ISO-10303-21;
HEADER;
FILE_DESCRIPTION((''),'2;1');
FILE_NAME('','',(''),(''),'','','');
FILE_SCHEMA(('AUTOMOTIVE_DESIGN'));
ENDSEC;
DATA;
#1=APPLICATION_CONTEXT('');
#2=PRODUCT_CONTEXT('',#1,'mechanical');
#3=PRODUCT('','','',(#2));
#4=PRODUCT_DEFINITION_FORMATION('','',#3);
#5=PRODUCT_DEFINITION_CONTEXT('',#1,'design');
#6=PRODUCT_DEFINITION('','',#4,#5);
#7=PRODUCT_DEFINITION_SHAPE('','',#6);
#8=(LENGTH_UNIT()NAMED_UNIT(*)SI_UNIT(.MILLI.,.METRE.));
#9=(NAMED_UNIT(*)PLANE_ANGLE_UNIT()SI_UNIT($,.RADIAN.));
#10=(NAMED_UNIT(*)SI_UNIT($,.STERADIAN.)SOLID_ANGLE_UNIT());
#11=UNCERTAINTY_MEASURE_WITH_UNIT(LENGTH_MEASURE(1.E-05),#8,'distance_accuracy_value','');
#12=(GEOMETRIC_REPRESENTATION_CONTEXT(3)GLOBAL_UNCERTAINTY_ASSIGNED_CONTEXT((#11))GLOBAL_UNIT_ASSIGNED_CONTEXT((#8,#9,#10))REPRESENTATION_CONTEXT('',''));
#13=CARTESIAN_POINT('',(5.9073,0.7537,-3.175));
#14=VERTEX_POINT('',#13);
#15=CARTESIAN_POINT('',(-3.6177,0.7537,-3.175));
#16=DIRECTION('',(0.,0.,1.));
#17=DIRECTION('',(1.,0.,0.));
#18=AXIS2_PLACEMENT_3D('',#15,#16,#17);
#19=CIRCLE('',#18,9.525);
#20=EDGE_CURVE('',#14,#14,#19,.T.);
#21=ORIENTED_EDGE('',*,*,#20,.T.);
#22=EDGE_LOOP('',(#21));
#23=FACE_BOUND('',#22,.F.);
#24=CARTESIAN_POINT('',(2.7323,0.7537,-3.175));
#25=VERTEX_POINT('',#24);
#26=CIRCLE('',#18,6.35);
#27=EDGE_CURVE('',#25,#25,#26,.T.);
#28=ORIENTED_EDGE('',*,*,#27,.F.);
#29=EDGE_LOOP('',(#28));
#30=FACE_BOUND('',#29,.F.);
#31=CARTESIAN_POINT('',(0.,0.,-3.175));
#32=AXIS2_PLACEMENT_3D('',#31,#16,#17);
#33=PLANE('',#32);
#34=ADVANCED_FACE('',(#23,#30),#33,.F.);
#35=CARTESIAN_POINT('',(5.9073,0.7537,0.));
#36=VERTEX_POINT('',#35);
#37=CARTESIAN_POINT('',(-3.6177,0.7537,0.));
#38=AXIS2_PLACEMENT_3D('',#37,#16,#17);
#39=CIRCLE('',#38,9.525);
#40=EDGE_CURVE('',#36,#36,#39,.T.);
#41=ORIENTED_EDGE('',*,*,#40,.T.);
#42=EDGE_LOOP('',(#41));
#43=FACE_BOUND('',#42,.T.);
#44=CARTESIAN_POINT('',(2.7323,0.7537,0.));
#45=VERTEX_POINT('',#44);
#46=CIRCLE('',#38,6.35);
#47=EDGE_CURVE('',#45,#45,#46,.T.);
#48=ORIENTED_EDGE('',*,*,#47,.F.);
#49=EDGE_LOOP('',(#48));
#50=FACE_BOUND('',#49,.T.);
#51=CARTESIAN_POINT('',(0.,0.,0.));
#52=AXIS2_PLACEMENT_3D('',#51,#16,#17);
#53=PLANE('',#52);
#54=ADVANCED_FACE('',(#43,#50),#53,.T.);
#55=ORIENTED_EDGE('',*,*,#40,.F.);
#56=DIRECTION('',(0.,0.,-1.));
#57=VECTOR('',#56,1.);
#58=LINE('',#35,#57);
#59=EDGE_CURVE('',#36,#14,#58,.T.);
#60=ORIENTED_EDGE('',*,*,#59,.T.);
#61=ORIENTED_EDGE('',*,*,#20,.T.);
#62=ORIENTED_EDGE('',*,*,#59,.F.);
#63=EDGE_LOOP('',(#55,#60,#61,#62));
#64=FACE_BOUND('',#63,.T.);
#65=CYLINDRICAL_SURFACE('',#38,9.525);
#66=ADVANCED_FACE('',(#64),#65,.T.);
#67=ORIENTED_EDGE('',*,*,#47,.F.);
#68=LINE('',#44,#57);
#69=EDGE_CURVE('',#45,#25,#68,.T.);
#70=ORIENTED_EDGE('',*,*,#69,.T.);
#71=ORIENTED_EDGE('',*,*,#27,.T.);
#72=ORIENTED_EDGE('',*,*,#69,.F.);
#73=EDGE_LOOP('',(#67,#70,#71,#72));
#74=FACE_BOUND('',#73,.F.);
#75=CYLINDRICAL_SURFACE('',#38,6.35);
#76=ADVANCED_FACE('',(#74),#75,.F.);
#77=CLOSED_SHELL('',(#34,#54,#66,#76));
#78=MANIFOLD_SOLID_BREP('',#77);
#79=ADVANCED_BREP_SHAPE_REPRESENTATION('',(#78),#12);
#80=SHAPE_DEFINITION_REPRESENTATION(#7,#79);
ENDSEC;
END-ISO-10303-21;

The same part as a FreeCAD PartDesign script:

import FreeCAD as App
import Part
import Sketcher
from FreeCAD import Vector
Q = App.Units.Quantity

doc = App.newDocument("Part")
body = doc.addObject("PartDesign::Body", "Body")

# Sketch on XY plane
sketch1 = body.newObject("Sketcher::SketchObject", "Sketch")
sketch1.AttachmentSupport = (doc.getObject("XY_Plane"), [""])
sketch1.MapMode = "FlatFace"
sketch1.addGeometry(Part.Circle(Vector(-4, 1, 0), Vector(0, 0, 1), 10), False)
sketch1.addGeometry(Part.Circle(Vector(-4, 1, 0), Vector(0, 0, 1), 6), False)
sketch1.addConstraint(Sketcher.Constraint("Coincident", 1, 3, 0, 3))
sketch1.addConstraint(Sketcher.Constraint("Diameter", 1, Q("0.5 in")))
sketch1.addConstraint(Sketcher.Constraint("Diameter", 0, Q("0.75 in")))
sketch1.addConstraint(Sketcher.Constraint("DistanceX", 0, 3, -1, 1, Q("3.6177 mm")))
sketch1.addConstraint(Sketcher.Constraint("DistanceY", -1, 1, 0, 3, Q("0.7537 mm")))
pad1 = body.newObject("PartDesign::Pad", "Pad")
pad1.Profile = sketch1
pad1.Length = Q("0.125 in")
pad1.Reversed = True

doc.recompute()
